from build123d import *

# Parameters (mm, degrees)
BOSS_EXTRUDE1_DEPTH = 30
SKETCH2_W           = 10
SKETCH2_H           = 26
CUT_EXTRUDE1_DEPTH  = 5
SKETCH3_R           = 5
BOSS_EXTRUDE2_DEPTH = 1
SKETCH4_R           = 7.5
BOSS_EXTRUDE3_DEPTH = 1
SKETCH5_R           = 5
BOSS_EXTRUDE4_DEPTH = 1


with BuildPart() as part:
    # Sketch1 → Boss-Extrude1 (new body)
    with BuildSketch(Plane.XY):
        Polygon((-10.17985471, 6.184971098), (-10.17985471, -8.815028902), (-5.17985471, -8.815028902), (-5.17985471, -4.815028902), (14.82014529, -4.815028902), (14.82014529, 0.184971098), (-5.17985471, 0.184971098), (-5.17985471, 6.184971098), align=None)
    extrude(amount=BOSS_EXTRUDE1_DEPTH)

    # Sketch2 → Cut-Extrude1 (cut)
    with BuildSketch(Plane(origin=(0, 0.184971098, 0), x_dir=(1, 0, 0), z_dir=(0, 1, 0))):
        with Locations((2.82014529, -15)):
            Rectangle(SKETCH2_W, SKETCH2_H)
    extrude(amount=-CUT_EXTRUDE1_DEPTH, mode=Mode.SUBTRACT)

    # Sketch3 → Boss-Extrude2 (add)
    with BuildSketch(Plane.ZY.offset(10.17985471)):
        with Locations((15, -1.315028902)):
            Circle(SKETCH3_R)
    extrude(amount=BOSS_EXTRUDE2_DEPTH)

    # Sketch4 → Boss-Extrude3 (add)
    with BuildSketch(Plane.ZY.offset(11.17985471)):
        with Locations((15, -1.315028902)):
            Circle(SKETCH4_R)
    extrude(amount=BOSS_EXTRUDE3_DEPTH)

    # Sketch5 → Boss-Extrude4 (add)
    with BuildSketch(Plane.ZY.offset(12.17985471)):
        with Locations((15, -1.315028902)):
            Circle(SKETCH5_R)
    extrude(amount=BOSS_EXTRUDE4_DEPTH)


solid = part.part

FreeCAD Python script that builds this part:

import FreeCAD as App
import Part
import Sketcher

V = App.Vector
Q = App.Units.Quantity


def add_polygon(sketch, points):
    """Adds a closed chain of lines whose ends are joined by coincident constraints."""
    first, n = sketch.GeometryCount, len(points)
    for a, b in zip(points, points[1:] + points[:1]):
        sketch.addGeometry(Part.LineSegment(App.Vector(*a, 0), App.Vector(*b, 0)), False)
    for i in range(n):
        sketch.addConstraint(Sketcher.Constraint("Coincident", first + i, 2, first + (i + 1) % n, 1))

doc = App.newDocument("Part")
body = doc.addObject("PartDesign::Body", "Body")

# Sketch on XY plane
sketch1 = body.newObject("Sketcher::SketchObject", "Sketch")
sketch1.AttachmentSupport = (doc.getObject("XY_Plane"), [""])
sketch1.MapMode = "FlatFace"
add_polygon(sketch1, [(-10.179855, 6.184971), (-10.179855, -8.815029), (-5.179855, -8.815029), (-5.179855, -4.815029), (14.820145, -4.815029), (14.820145, 0.184971), (-5.179855, 0.184971), (-5.179855, 6.184971)])  # lines 0-7
sketch1.addConstraint([
    Sketcher.Constraint("Vertical", 0),
    Sketcher.Constraint("Horizontal", 1),
    Sketcher.Constraint("Vertical", 2),
    Sketcher.Constraint("Horizontal", 3),
    Sketcher.Constraint("Vertical", 4),
    Sketcher.Constraint("Horizontal", 5),
    Sketcher.Constraint("Vertical", 6),
    Sketcher.Constraint("Horizontal", 7),
    Sketcher.Constraint("Vertical", 2, 2, 5, 2),
    Sketcher.Constraint("Equal", 7, 4),
    Sketcher.Constraint("DistanceX", 1, 1, 1, 2, Q("5 mm")),
    Sketcher.Constraint("DistanceX", 3, 1, 3, 2, Q("20 mm")),
    Sketcher.Constraint("DistanceY", 0, 2, 0, 1, Q("15 mm")),
    Sketcher.Constraint("DistanceY", 2, 1, 2, 2, Q("4 mm")),
    Sketcher.Constraint("DistanceY", 0, 2, -1, 1, Q("8.815029 mm")),
    Sketcher.Constraint("DistanceX", 0, 2, -1, 1, Q("10.179855 mm")),
])
pad1 = body.newObject("PartDesign::Pad", "Pad")
pad1.Profile = sketch1
pad1.Length = 30

# Sketch on XZ plane
sketch2 = body.newObject("Sketcher::SketchObject", "Sketch001")
sketch2.AttachmentSupport = (doc.getObject("XZ_Plane"), [""])
sketch2.MapMode = "FlatFace"
sketch2.AttachmentOffset = App.Placement(V(0, 0, -0.184971), App.Rotation())
add_polygon(sketch2, [(-2.179855, 2), (-2.179855, 28), (7.820145, 28), (7.820145, 2)])  # lines 0-3
sketch2.addConstraint([
    Sketcher.Constraint("Vertical", 0),
    Sketcher.Constraint("Horizontal", 1),
    Sketcher.Constraint("Vertical", 2),
    Sketcher.Constraint("Horizontal", 3),
    Sketcher.Constraint("DistanceX", 1, 1, 1, 2, Q("10 mm")),
    Sketcher.Constraint("DistanceY", 0, 1, 0, 2, Q("26 mm")),
    Sketcher.Constraint("DistanceY", -1, 1, 0, 2, Q("28 mm")),
    Sketcher.Constraint("DistanceX", 0, 2, -1, 1, Q("2.179855 mm")),
])
pocket1 = body.newObject("PartDesign::Pocket", "Pocket")
pocket1.Profile = sketch2
pocket1.Length = 5
pocket1.Reversed = True

# Sketch on YZ plane
sketch3 = body.newObject("Sketcher::SketchObject", "Sketch002")
sketch3.AttachmentSupport = (doc.getObject("YZ_Plane"), [""])
sketch3.MapMode = "FlatFace"
sketch3.AttachmentOffset = App.Placement(V(0, 0, -10.179855), App.Rotation())
sketch3.addGeometry(Part.Circle(V(-1.315029, 15, 0), V(0, 0, 1), 5), False)
sketch3.addConstraint([
    Sketcher.Constraint("Diameter", 0, Q("10 mm")),
    Sketcher.Constraint("DistanceY", -1, 1, 0, 3, Q("15 mm")),
    Sketcher.Constraint("DistanceX", 0, 3, -1, 1, Q("1.315029 mm")),
])
pad2 = body.newObject("PartDesign::Pad", "Pad001")
pad2.Profile = sketch3
pad2.Length = 1
pad2.Reversed = True

# Sketch on YZ plane
sketch4 = body.newObject("Sketcher::SketchObject", "Sketch003")
sketch4.AttachmentSupport = (doc.getObject("YZ_Plane"), [""])
sketch4.MapMode = "FlatFace"
sketch4.AttachmentOffset = App.Placement(V(0, 0, -11.179855), App.Rotation())
sketch4.addGeometry(Part.Circle(V(-1.315029, 15, 0), V(0, 0, 1), 7.5), False)
sketch4.addConstraint([
    Sketcher.Constraint("Diameter", 0, Q("15 mm")),
    Sketcher.Constraint("DistanceY", -1, 1, 0, 3, Q("15 mm")),
    Sketcher.Constraint("DistanceX", 0, 3, -1, 1, Q("1.315029 mm")),
])
pad3 = body.newObject("PartDesign::Pad", "Pad002")
pad3.Profile = sketch4
pad3.Length = 1
pad3.Reversed = True

# Sketch on YZ plane
sketch5 = body.newObject("Sketcher::SketchObject", "Sketch004")
sketch5.AttachmentSupport = (doc.getObject("YZ_Plane"), [""])
sketch5.MapMode = "FlatFace"
sketch5.AttachmentOffset = App.Placement(V(0, 0, -12.179855), App.Rotation())
sketch5.addGeometry(Part.Circle(V(-1.315029, 15, 0), V(0, 0, 1), 5), False)
sketch5.addConstraint([
    Sketcher.Constraint("Diameter", 0, Q("10 mm")),
    Sketcher.Constraint("DistanceY", -1, 1, 0, 3, Q("15 mm")),
    Sketcher.Constraint("DistanceX", 0, 3, -1, 1, Q("1.315029 mm")),
])
pad4 = body.newObject("PartDesign::Pad", "Pad003")
pad4.Profile = sketch5
pad4.Length = 1
pad4.Reversed = True

doc.recompute()
